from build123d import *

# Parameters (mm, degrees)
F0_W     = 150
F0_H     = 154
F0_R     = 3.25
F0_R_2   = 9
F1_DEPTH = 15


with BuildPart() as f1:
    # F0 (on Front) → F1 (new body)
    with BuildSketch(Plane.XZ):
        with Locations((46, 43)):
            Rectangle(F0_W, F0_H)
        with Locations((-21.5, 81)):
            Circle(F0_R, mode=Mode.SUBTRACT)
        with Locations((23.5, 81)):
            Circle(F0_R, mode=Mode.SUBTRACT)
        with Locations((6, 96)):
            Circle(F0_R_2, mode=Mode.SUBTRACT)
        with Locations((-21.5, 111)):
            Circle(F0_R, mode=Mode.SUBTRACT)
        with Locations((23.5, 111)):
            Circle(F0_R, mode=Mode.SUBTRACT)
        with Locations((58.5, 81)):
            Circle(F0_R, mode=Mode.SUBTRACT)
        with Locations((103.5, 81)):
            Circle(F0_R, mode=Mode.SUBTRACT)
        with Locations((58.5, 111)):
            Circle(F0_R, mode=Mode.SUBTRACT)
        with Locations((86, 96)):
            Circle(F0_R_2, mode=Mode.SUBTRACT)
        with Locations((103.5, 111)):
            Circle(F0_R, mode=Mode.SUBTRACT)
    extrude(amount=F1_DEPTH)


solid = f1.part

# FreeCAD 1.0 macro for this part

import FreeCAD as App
import Part
import Sketcher
from FreeCAD import Vector

doc = App.newDocument("Part")
body = doc.addObject("PartDesign::Body", "Body")

# Sketch on XZ plane
sketch1 = body.newObject("Sketcher::SketchObject", "Sketch")
sketch1.AttachmentSupport = (doc.getObject("XZ_Plane"), [""])
sketch1.MapMode = "FlatFace"
sketch1.addGeometry([
    Part.LineSegment(Vector(-29, 120, 0), Vector(-29, -34, 0)),  # 0
    Part.LineSegment(Vector(-29, -34, 0), Vector(121, -34, 0)),  # 1
    Part.LineSegment(Vector(121, -34, 0), Vector(121, 120, 0)),  # 2
    Part.LineSegment(Vector(121, 120, 0), Vector(-29, 120, 0)),  # 3
    Part.Circle(Vector(-21.5, 81, 0), Vector(0, 0, 1), 3.2),  # 4
    Part.Circle(Vector(23.5, 81, 0), Vector(0, 0, 1), 3.2),  # 5
    Part.Circle(Vector(58.5, 81, 0), Vector(0, 0, 1), 3.2),  # 6
    Part.Circle(Vector(103.5, 81, 0), Vector(0, 0, 1), 3.2),  # 7
    Part.Circle(Vector(6, 96, 0), Vector(0, 0, 1), 9),  # 8
    Part.Circle(Vector(-21.5, 111, 0), Vector(0, 0, 1), 3.2),  # 9
    Part.Circle(Vector(23.5, 111, 0), Vector(0, 0, 1), 3.2),  # 10
    Part.Circle(Vector(86, 96, 0), Vector(0, 0, 1), 9),  # 11
    Part.Circle(Vector(58.5, 111, 0), Vector(0, 0, 1), 3.2),  # 12
    Part.Circle(Vector(103.5, 111, 0), Vector(0, 0, 1), 3.2),  # 13
], False)
sketch1.addConstraint([
    Sketcher.Constraint("Coincident", 0, 2, 1, 1),
    Sketcher.Constraint("Coincident", 1, 2, 2, 1),
    Sketcher.Constraint("Coincident", 2, 2, 3, 1),
    Sketcher.Constraint("Coincident", 3, 2, 0, 1),
    Sketcher.Constraint("Vertical", 0),
    Sketcher.Constraint("Horizontal", 1),
    Sketcher.Constraint("Vertical", 2),
    Sketcher.Constraint("Horizontal", 3),
    Sketcher.Constraint("Equal", 4, 5),
    Sketcher.Constraint("Equal", 5, 6),
    Sketcher.Constraint("Equal", 6, 7),
    Sketcher.Constraint("Equal", 7, 9),
    Sketcher.Constraint("Equal", 9, 10),
    Sketcher.Constraint("Equal", 8, 11),
    Sketcher.Constraint("Equal", 10, 12),
    Sketcher.Constraint("Equal", 12, 13),
    Sketcher.Constraint("Horizontal", 4, 3, 5, 3),
    Sketcher.Constraint("Horizontal", 5, 3, 6, 3),
    Sketcher.Constraint("Horizontal", 6, 3, 7, 3),
    Sketcher.Constraint("Horizontal", 9, 3, 10, 3),
    Sketcher.Constraint("Horizontal", 8, 3, 11, 3),
    Sketcher.Constraint("Horizontal", 10, 3, 12, 3),
    Sketcher.Constraint("Horizontal", 12, 3, 13, 3),
    Sketcher.Constraint("Vertical", 4, 3, 9, 3),
    Sketcher.Constraint("Vertical", 5, 3, 10, 3),
    Sketcher.Constraint("Vertical", 6, 3, 12, 3),
    Sketcher.Constraint("Vertical", 7, 3, 13, 3),
    Sketcher.Constraint("Diameter", 8, 18.0),
    Sketcher.Constraint("Diameter", 4, 6.5),
    Sketcher.Constraint("DistanceX", 1, 1, 1, 2, 150.0),
    Sketcher.Constraint("DistanceY", 0, 2, 0, 1, 154.0),
    Sketcher.Constraint("DistanceY", -1, 1, 4, 3, 81.0),
    Sketcher.Constraint("DistanceX", -1, 1, 8, 3, 6.0),
    Sketcher.Constraint("DistanceY", -1, 1, 8, 3, 96.0),
    Sketcher.Constraint("DistanceY", -1, 1, 9, 3, 111.0),
    Sketcher.Constraint("DistanceX", -1, 1, 11, 3, 86.0),
    Sketcher.Constraint("DistanceX", 0, 2, -1, 1, 29.0),
    Sketcher.Constraint("DistanceY", 0, 2, -1, 1, 34.0),
    Sketcher.Constraint("DistanceX", 4, 3, 5, 3, 45.0),
    Sketcher.Constraint("DistanceX", 5, 3, 6, 3, 35.0),
    Sketcher.Constraint("DistanceX", 6, 3, 7, 3, 45.0),
    Sketcher.Constraint("DistanceX", 4, 3, -1, 1, 21.5),
])
pad1 = body.newObject("PartDesign::Pad", "Pad")
pad1.Profile = sketch1
pad1.Length = 15

doc.recompute()
